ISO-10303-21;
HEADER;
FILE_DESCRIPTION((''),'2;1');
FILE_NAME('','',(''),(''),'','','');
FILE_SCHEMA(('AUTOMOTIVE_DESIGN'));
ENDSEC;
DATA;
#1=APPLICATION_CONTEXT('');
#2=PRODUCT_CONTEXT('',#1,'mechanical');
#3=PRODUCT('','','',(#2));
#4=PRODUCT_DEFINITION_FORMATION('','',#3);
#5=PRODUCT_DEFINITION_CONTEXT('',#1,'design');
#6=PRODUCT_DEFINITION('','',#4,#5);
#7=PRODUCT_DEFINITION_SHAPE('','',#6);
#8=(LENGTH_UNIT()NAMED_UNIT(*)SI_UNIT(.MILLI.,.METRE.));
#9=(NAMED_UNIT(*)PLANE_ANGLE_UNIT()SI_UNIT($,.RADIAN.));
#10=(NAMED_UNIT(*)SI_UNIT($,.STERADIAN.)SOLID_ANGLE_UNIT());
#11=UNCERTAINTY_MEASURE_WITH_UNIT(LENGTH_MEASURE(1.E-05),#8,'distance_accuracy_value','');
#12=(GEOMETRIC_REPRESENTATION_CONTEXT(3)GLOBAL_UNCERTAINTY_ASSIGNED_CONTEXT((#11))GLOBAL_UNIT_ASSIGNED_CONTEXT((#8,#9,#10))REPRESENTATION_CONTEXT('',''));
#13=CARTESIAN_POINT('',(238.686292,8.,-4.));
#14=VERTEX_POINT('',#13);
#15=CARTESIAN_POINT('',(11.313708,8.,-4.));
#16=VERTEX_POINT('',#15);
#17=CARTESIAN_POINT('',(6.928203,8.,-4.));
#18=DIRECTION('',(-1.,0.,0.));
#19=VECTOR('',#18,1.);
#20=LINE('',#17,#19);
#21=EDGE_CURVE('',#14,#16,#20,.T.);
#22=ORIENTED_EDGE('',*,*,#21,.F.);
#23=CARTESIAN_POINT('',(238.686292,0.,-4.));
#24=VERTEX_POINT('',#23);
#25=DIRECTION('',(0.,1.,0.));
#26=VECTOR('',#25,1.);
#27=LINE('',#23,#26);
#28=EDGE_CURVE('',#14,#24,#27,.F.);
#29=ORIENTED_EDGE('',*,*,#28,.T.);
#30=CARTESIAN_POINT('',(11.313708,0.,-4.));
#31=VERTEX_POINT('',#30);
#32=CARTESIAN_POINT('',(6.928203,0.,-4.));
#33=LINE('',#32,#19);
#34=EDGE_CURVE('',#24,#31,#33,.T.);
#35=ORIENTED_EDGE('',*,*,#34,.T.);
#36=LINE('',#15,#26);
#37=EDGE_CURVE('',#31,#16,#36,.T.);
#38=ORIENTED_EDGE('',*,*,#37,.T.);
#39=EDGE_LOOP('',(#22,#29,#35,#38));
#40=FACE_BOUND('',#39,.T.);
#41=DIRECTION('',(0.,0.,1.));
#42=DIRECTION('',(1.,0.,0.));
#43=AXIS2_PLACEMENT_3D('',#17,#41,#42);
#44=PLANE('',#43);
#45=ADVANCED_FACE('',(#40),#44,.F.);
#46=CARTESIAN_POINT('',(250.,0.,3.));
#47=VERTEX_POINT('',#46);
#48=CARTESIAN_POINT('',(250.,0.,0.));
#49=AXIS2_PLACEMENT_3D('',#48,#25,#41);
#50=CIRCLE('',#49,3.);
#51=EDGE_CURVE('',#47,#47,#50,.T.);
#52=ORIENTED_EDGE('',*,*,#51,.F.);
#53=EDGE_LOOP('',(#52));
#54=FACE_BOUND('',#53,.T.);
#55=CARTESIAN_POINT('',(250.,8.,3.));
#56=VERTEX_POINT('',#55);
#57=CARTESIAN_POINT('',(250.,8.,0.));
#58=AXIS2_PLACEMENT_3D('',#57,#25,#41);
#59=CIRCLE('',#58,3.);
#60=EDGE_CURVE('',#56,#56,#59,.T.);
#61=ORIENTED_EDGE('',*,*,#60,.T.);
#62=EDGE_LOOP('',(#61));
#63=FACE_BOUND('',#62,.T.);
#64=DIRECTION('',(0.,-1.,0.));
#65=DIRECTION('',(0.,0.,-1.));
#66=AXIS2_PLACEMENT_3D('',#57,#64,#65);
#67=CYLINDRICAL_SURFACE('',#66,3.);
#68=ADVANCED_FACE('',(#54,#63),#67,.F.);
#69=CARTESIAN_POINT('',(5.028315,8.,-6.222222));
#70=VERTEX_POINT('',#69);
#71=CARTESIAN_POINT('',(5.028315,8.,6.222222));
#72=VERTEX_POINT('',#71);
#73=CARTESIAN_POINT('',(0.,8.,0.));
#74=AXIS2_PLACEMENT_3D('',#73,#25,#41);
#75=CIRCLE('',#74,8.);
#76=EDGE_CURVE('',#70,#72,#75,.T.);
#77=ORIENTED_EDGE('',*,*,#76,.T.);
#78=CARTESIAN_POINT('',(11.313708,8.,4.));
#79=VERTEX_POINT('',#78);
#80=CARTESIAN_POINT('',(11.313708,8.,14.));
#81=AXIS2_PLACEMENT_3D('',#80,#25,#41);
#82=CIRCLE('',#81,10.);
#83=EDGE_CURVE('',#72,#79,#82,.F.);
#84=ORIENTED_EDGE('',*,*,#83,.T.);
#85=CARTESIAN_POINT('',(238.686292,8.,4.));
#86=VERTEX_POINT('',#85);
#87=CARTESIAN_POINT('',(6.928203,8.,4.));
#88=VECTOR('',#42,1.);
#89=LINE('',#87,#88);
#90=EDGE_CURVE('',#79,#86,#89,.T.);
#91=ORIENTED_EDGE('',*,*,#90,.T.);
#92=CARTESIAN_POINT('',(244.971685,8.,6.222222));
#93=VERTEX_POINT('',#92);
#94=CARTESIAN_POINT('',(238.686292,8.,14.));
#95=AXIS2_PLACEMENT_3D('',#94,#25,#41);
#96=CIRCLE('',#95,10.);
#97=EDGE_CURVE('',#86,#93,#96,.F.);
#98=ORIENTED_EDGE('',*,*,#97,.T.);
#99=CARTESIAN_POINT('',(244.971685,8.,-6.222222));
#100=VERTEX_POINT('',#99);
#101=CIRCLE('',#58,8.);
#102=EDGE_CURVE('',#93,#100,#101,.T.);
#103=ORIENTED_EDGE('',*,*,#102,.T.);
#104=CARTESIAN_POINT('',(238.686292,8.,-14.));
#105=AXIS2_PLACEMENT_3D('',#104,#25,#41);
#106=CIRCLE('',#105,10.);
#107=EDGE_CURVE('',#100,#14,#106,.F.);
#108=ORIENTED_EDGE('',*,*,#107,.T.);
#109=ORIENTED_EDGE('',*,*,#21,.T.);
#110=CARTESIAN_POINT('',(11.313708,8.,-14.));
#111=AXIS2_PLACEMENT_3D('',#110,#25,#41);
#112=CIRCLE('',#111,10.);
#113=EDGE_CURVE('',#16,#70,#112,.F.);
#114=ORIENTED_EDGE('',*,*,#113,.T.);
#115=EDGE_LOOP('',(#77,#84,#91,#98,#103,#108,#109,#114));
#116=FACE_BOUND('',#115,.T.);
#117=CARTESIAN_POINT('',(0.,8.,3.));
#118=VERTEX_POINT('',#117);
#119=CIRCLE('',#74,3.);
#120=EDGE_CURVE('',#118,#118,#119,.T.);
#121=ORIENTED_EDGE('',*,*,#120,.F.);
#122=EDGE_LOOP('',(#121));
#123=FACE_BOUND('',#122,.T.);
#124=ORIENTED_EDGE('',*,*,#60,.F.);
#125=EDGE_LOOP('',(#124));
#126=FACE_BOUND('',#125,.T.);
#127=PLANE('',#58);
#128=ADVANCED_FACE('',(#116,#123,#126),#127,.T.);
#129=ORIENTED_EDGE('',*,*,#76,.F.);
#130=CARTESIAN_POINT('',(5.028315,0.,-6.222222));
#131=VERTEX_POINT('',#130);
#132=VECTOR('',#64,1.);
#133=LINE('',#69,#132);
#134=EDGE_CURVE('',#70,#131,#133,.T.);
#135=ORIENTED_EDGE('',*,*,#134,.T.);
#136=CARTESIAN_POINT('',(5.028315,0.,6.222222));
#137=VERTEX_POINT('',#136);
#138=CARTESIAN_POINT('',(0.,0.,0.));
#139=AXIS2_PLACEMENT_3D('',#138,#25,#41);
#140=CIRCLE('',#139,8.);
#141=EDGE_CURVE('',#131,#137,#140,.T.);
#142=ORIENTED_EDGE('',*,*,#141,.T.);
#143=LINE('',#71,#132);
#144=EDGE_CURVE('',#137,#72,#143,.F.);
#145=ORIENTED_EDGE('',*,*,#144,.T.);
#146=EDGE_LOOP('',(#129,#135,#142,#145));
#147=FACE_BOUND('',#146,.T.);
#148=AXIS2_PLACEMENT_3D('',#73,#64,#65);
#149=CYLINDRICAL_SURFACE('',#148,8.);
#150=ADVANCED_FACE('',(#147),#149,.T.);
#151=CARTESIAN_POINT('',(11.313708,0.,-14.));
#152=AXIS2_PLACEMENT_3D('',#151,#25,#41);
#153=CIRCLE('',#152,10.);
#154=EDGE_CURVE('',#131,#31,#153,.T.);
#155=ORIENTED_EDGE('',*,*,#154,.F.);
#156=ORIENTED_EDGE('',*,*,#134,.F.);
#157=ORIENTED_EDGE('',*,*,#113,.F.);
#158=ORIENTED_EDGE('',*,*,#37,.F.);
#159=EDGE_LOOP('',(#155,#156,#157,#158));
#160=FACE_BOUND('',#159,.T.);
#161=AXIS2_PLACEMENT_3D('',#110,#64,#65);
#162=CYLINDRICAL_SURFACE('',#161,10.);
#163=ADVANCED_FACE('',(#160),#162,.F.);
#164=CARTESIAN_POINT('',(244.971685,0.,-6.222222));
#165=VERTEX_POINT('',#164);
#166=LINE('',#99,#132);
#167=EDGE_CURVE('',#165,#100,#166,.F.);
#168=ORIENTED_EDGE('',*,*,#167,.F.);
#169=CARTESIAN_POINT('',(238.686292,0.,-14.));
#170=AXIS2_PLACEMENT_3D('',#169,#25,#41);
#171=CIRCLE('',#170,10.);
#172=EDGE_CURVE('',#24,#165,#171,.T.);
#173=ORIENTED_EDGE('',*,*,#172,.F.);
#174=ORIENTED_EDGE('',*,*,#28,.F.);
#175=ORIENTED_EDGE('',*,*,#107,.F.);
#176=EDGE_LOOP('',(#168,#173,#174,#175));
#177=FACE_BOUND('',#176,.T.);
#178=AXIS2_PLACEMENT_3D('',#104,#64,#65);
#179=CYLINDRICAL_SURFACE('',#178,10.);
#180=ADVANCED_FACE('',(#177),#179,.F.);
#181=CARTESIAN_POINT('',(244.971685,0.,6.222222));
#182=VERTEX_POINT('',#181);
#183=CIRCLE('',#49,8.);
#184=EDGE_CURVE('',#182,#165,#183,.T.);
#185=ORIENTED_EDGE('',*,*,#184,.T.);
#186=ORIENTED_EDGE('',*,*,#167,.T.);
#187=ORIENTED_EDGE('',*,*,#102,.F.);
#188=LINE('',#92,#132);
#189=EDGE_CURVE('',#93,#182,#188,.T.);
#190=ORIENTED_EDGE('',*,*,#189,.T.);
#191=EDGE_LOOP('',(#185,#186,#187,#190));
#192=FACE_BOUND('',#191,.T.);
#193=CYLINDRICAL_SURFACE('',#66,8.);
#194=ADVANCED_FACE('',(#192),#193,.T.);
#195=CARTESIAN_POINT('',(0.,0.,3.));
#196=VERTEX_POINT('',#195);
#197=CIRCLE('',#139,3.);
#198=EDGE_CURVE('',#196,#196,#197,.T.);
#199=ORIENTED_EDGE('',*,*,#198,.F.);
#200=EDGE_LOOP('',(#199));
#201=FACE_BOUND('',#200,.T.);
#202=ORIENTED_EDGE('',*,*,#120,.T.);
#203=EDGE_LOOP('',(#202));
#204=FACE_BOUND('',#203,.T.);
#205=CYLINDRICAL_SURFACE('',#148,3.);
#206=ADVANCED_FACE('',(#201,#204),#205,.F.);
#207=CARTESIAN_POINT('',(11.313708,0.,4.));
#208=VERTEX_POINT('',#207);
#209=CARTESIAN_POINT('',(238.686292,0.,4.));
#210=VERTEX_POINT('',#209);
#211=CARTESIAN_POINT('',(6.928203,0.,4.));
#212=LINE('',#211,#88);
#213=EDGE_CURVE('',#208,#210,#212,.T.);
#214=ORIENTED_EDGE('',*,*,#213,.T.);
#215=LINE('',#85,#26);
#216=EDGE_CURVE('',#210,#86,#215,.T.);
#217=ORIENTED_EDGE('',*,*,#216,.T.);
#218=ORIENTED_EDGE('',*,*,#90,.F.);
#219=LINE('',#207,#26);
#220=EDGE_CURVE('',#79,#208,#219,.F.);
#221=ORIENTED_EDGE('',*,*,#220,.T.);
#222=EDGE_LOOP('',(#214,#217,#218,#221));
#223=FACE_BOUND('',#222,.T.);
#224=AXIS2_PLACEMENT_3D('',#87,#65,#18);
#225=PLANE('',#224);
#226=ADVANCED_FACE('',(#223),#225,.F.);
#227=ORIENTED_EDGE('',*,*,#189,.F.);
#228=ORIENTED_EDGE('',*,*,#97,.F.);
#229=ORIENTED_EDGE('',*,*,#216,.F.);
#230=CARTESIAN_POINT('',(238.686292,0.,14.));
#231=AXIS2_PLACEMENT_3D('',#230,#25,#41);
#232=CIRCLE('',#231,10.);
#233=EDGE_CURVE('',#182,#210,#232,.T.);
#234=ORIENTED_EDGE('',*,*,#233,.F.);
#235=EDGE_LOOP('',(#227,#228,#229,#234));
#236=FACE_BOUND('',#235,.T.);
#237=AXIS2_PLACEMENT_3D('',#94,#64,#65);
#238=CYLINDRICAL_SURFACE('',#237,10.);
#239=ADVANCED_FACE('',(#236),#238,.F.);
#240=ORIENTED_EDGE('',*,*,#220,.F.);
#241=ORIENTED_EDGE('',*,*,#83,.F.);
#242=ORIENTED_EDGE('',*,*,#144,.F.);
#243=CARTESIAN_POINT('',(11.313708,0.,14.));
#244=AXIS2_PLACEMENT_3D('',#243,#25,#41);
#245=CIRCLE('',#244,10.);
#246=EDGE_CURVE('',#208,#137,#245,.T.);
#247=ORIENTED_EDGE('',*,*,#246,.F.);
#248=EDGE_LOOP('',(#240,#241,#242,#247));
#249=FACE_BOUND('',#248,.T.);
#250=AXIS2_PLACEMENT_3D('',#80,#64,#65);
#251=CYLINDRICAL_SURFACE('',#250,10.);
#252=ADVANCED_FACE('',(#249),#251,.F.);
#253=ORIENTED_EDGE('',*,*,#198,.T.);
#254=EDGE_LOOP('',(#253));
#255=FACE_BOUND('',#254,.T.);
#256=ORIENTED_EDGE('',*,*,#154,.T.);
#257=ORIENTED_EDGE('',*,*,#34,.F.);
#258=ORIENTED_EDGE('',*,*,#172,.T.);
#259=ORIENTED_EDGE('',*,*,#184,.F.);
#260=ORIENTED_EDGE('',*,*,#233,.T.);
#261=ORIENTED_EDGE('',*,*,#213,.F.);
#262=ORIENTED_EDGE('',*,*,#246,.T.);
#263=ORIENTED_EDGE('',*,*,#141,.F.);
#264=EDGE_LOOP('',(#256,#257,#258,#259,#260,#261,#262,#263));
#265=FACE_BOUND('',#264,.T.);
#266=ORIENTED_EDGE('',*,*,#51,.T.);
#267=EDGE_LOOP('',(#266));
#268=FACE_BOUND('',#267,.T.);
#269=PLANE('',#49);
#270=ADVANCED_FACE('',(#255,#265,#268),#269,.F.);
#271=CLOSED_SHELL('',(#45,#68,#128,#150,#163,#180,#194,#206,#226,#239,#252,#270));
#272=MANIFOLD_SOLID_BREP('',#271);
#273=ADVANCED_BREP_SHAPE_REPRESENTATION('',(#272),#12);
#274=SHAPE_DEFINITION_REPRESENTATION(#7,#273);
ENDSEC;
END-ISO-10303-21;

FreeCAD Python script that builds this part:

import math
import FreeCAD as App
import Part
import Sketcher

V = App.Vector
Q = App.Units.Quantity


def edges_at(feature, points):
    """Names of the edges that pass closest to the given points."""
    edges = feature.Shape.Edges
    near = lambda p: min(range(len(edges)), key=lambda i: edges[i].distToShape(Part.Vertex(*p))[0])
    return sorted({f"Edge{near(p) + 1}" for p in points})

doc = App.newDocument("Part")
body = doc.addObject("PartDesign::Body", "Body")

# Sketch on XZ plane
sketch1 = body.newObject("Sketcher::SketchObject", "Sketch")
sketch1.AttachmentSupport = (doc.getObject("XZ_Plane"), [""])
sketch1.MapMode = "FlatFace"
sketch1.addGeometry(Part.LineSegment(V(243.1, -4, 0), V(6.9, -4, 0)), False)
sketch1.addGeometry(Part.ArcOfCircle(Part.Circle(V(0, 0, 0), V(0, 0, 1), 8), math.radians(30), math.radians(330)), False)
sketch1.addGeometry(Part.LineSegment(V(6.9, 4, 0), V(243.1, 4, 0)), False)
sketch1.addGeometry(Part.ArcOfCircle(Part.Circle(V(250, 0, 0), V(0, 0, 1), 8), math.radians(-150), math.radians(150)), False)
sketch1.addGeometry(Part.Circle(V(250, 0, 0), V(0, 0, 1), 3), False)
sketch1.addGeometry(Part.Circle(V(0, 0, 0), V(0, 0, 1), 3), False)
sketch1.addConstraint(Sketcher.Constraint("Coincident", 0, 2, 1, 2))
sketch1.addConstraint(Sketcher.Constraint("Coincident", 1, 1, 2, 1))
sketch1.addConstraint(Sketcher.Constraint("Coincident", 2, 2, 3, 2))
sketch1.addConstraint(Sketcher.Constraint("Coincident", 3, 1, 0, 1))
sketch1.addConstraint(Sketcher.Constraint("Horizontal", 0))
sketch1.addConstraint(Sketcher.Constraint("Horizontal", 2))
sketch1.addConstraint(Sketcher.Constraint("Coincident", 1, 3, -1, 1))
sketch1.addConstraint(Sketcher.Constraint("Coincident", 5, 3, -1, 1))
sketch1.addConstraint(Sketcher.Constraint("Coincident", 4, 3, 3, 3))
sketch1.addConstraint(Sketcher.Constraint("Equal", 1, 3))
sketch1.addConstraint(Sketcher.Constraint("Equal", 4, 5))
sketch1.addConstraint(Sketcher.Constraint("Symmetric", 2, 2, 3, 1, -1))
sketch1.addConstraint(Sketcher.Constraint("Diameter", 4, Q("6 mm")))
sketch1.addConstraint(Sketcher.Constraint("Radius", 1, Q("8 mm")))
sketch1.addConstraint(Sketcher.Constraint("DistanceX", -1, 1, 3, 3, Q("250 mm")))
sketch1.addConstraint(Sketcher.Constraint("DistanceY", 0, 2, -1, 1, Q("4 mm")))
pad1 = body.newObject("PartDesign::Pad", "Pad")
pad1.Profile = sketch1
pad1.Length = 8
pad1.Reversed = True
doc.recompute()

fillet = body.newObject("PartDesign::Fillet", "Fillet")
fillet.Base = (pad1, edges_at(pad1, [
    (243.072, 4, 4),
    (6.928, 4, 4),
    (6.928, 4, -4),
    (243.072, 4, -4),
]))
fillet.Radius = 10

doc.recompute()
